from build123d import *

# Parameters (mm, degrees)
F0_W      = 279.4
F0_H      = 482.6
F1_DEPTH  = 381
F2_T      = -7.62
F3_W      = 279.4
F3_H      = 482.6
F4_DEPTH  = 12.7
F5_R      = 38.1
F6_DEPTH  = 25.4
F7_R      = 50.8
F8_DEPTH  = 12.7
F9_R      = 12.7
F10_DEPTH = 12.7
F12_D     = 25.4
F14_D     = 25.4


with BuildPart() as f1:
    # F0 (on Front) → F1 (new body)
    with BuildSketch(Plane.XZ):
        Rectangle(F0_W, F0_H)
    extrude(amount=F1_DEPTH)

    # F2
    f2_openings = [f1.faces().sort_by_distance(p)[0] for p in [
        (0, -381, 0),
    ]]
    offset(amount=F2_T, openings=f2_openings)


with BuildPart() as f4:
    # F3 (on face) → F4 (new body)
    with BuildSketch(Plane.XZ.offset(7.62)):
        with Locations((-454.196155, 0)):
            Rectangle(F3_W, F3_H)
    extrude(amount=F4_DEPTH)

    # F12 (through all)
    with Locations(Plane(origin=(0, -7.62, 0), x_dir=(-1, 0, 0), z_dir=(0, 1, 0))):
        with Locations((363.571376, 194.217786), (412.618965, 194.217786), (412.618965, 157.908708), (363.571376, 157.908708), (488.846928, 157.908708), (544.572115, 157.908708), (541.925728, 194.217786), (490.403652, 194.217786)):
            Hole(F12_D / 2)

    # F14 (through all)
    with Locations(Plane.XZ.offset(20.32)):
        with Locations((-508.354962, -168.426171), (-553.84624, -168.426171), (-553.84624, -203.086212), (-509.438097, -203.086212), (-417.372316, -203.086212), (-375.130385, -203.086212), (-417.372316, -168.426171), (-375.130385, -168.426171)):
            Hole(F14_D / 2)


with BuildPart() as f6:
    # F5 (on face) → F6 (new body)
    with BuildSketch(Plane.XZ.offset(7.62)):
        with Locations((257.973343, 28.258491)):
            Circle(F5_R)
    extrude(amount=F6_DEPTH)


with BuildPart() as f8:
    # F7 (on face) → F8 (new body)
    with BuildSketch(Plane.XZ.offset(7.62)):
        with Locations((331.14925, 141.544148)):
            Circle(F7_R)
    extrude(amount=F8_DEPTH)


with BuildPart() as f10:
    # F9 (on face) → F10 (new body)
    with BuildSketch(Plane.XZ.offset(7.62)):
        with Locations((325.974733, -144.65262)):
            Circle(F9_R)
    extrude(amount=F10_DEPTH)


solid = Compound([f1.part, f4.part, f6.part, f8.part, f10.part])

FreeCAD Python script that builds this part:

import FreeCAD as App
import Part
import Sketcher
from FreeCAD import Vector
Q = App.Units.Quantity


def faces_at(feature, points):
    """Names of the faces that lie closest to the given points."""
    faces = feature.Shape.Faces
    near = lambda p: min(range(len(faces)), key=lambda i: faces[i].distToShape(Part.Vertex(*p))[0])
    return sorted({f"Face{near(p) + 1}" for p in points})


def add_polygon(sketch, points):
    """Adds a closed chain of lines whose ends are joined by coincident constraints."""
    first, n = sketch.GeometryCount, len(points)
    for a, b in zip(points, points[1:] + points[:1]):
        sketch.addGeometry(Part.LineSegment(App.Vector(*a, 0), App.Vector(*b, 0)), False)
    for i in range(n):
        sketch.addConstraint(Sketcher.Constraint("Coincident", first + i, 2, first + (i + 1) % n, 1))

doc = App.newDocument("Part")
body = doc.addObject("PartDesign::Body", "Body")

# Sketch on XZ plane
sketch1 = doc.addObject("Sketcher::SketchObject", "Sketch")
body.addObject(sketch1)
sketch1.AttachmentSupport = (doc.XZ_Plane, [""])
sketch1.MapMode = "FlatFace"
add_polygon(sketch1, [(-140, 241), (-140, -241), (140, -241), (140, 241)])  # lines 0-3
sketch1.addConstraint(Sketcher.Constraint("Vertical", 0))
sketch1.addConstraint(Sketcher.Constraint("Horizontal", 1))
sketch1.addConstraint(Sketcher.Constraint("Vertical", 2))
sketch1.addConstraint(Sketcher.Constraint("Horizontal", 3))
sketch1.addConstraint(Sketcher.Constraint("Symmetric", 0, 2, 2, 2, -1, 1))
sketch1.addConstraint(Sketcher.Constraint("DistanceX", 1, 1, 1, 2, Q("11 in")))
sketch1.addConstraint(Sketcher.Constraint("DistanceY", 0, 2, 0, 1, Q("19 in")))
pad1 = doc.addObject("PartDesign::Pad", "Pad")
body.addObject(pad1)
pad1.Profile = sketch1
pad1.Length = Q("15 in")
doc.recompute()

thickness = doc.addObject("PartDesign::Thickness", "Thickness")
body.addObject(thickness)
thickness.Base = (pad1, faces_at(pad1, [(0, -381, 0)]))
thickness.Value = Q("0.3 in")
thickness.Reversed = True
thickness.Join = "Arc"
body2 = doc.addObject("PartDesign::Body", "Body001")

# Sketch on XZ plane
sketch2 = doc.addObject("Sketcher::SketchObject", "Sketch001")
body2.addObject(sketch2)
sketch2.AttachmentSupport = (doc.getObject("XZ_Plane001"), [""])
sketch2.MapMode = "FlatFace"
sketch2.AttachmentOffset = App.Placement(Vector(0, 0, 0.3 * 25.4), App.Rotation())
add_polygon(sketch2, [(-594, 241), (-594, -241), (-314, -241), (-314, 241)])  # lines 0-3
sketch2.addConstraint(Sketcher.Constraint("Vertical", 0))
sketch2.addConstraint(Sketcher.Constraint("Horizontal", 1))
sketch2.addConstraint(Sketcher.Constraint("Vertical", 2))
sketch2.addConstraint(Sketcher.Constraint("Horizontal", 3))
sketch2.addConstraint(Sketcher.Constraint("DistanceX", 1, 1, 1, 2, Q("11 in")))
sketch2.addConstraint(Sketcher.Constraint("DistanceY", 0, 2, 0, 1, Q("19 in")))
sketch2.addConstraint(Sketcher.Constraint("DistanceY", 0, 2, -1, 1, Q("9.5 in")))
sketch2.addConstraint(Sketcher.Constraint("DistanceX", 0, 2, -1, 1, 593.896155))
pad2 = doc.addObject("PartDesign::Pad", "Pad001")
body2.addObject(pad2)
pad2.Profile = sketch2
pad2.Length = Q("0.5 in")

# Sketch on XZ plane
sketch3 = doc.addObject("Sketcher::SketchObject", "Sketch002")
body2.addObject(sketch3)
sketch3.AttachmentSupport = (doc.getObject("XZ_Plane001"), [""])
sketch3.MapMode = "FlatFace"
sketch3.AttachmentOffset = App.Placement(Vector(0, 0, 0.3 * 25.4), App.Rotation())
sketch3.addGeometry(Part.Circle(Vector(-364, 194, 0), Vector(0, 0, 1), 13), False)
sketch3.addGeometry(Part.Circle(Vector(-413, 194, 0), Vector(0, 0, 1), 13), False)
sketch3.addGeometry(Part.Circle(Vector(-413, 158, 0), Vector(0, 0, 1), 13), False)
sketch3.addGeometry(Part.Circle(Vector(-364, 158, 0), Vector(0, 0, 1), 13), False)
sketch3.addGeometry(Part.Circle(Vector(-489, 158, 0), Vector(0, 0, 1), 13), False)
sketch3.addGeometry(Part.Circle(Vector(-545, 158, 0), Vector(0, 0, 1), 13), False)
sketch3.addGeometry(Part.Circle(Vector(-542, 194, 0), Vector(0, 0, 1), 13), False)
sketch3.addGeometry(Part.Circle(Vector(-490, 194, 0), Vector(0, 0, 1), 13), False)
sketch3.addConstraint(Sketcher.Constraint("Equal", 0, 1))
sketch3.addConstraint(Sketcher.Constraint("Equal", 1, 2))
sketch3.addConstraint(Sketcher.Constraint("Equal", 2, 3))
sketch3.addConstraint(Sketcher.Constraint("Equal", 3, 4))
sketch3.addConstraint(Sketcher.Constraint("Equal", 4, 5))
sketch3.addConstraint(Sketcher.Constraint("Equal", 5, 6))
sketch3.addConstraint(Sketcher.Constraint("Equal", 6, 7))
sketch3.addConstraint(Sketcher.Constraint("Horizontal", 0, 3, 1, 3))
sketch3.addConstraint(Sketcher.Constraint("Horizontal", 2, 3, 3, 3))
sketch3.addConstraint(Sketcher.Constraint("Horizontal", 3, 3, 4, 3))
sketch3.addConstraint(Sketcher.Constraint("Horizontal", 4, 3, 5, 3))
sketch3.addConstraint(Sketcher.Constraint("Horizontal", 1, 3, 6, 3))
sketch3.addConstraint(Sketcher.Constraint("Horizontal", 6, 3, 7, 3))
sketch3.addConstraint(Sketcher.Constraint("Vertical", 1, 3, 2, 3))
sketch3.addConstraint(Sketcher.Constraint("Vertical", 0, 3, 3, 3))
sketch3.addConstraint(Sketcher.Constraint("Diameter", 0, Q("1 in")))
sketch3.addConstraint(Sketcher.Constraint("DistanceX", 6, 3, 4, 3, 53.0788))
sketch3.addConstraint(Sketcher.Constraint("DistanceX", 4, 3, -1, 1, 488.846928))
sketch3.addConstraint(Sketcher.Constraint("DistanceX", 7, 3, -1, 1, 490.403652))
sketch3.addConstraint(Sketcher.Constraint("DistanceX", 1, 3, 0, 3, 49.047589))
sketch3.addConstraint(Sketcher.Constraint("DistanceX", 5, 3, 2, 3, 131.95315))
sketch3.addConstraint(Sketcher.Constraint("DistanceX", 0, 3, -1, 1, 363.571376))
sketch3.addConstraint(Sketcher.Constraint("DistanceY", -1, 1, 0, 3, 194.217786))
sketch3.addConstraint(Sketcher.Constraint("DistanceY", -1, 1, 2, 3, 157.908708))
doc.recompute()
hole = doc.addObject("PartDesign::Hole", "Hole")
body2.addObject(hole)
hole.Profile = sketch3
hole.ThreadType = "None"
hole.Diameter = Q("1 in")
hole.DepthType = "ThroughAll"
hole.Reversed = True

# Sketch on XZ plane
sketch4 = doc.addObject("Sketcher::SketchObject", "Sketch003")
body2.addObject(sketch4)
sketch4.AttachmentSupport = (doc.getObject("XZ_Plane001"), [""])
sketch4.MapMode = "FlatFace"
sketch4.AttachmentOffset = App.Placement(Vector(0, 0, 0.8 * 25.4), App.Rotation())
sketch4.addGeometry(Part.Circle(Vector(-508, -168, 0), Vector(0, 0, 1), 13), False)
sketch4.addGeometry(Part.Circle(Vector(-554, -168, 0), Vector(0, 0, 1), 13), False)
sketch4.addGeometry(Part.Circle(Vector(-554, -203, 0), Vector(0, 0, 1), 13), False)
sketch4.addGeometry(Part.Circle(Vector(-509, -203, 0), Vector(0, 0, 1), 13), False)
sketch4.addGeometry(Part.Circle(Vector(-417, -203, 0), Vector(0, 0, 1), 13), False)
sketch4.addGeometry(Part.Circle(Vector(-375, -203, 0), Vector(0, 0, 1), 13), False)
sketch4.addGeometry(Part.Circle(Vector(-417, -168, 0), Vector(0, 0, 1), 13), False)
sketch4.addGeometry(Part.Circle(Vector(-375, -168, 0), Vector(0, 0, 1), 13), False)
sketch4.addConstraint(Sketcher.Constraint("Equal", 0, 1))
sketch4.addConstraint(Sketcher.Constraint("Equal", 1, 2))
sketch4.addConstraint(Sketcher.Constraint("Equal", 2, 3))
sketch4.addConstraint(Sketcher.Constraint("Equal", 3, 4))
sketch4.addConstraint(Sketcher.Constraint("Equal", 4, 5))
sketch4.addConstraint(Sketcher.Constraint("Equal", 5, 6))
sketch4.addConstraint(Sketcher.Constraint("Equal", 6, 7))
sketch4.addConstraint(Sketcher.Constraint("Horizontal", 0, 3, 1, 3))
sketch4.addConstraint(Sketcher.Constraint("Horizontal", 2, 3, 3, 3))
sketch4.addConstraint(Sketcher.Constraint("Horizontal", 3, 3, 4, 3))
sketch4.addConstraint(Sketcher.Constraint("Horizontal", 4, 3, 5, 3))
sketch4.addConstraint(Sketcher.Constraint("Horizontal", 1, 3, 6, 3))
sketch4.addConstraint(Sketcher.Constraint("Horizontal", 6, 3, 7, 3))
sketch4.addConstraint(Sketcher.Constraint("Vertical", 1, 3, 2, 3))
sketch4.addConstraint(Sketcher.Constraint("Vertical", 4, 3, 6, 3))
sketch4.addConstraint(Sketcher.Constraint("Vertical", 5, 3, 7, 3))
sketch4.addConstraint(Sketcher.Constraint("Diameter", 0, Q("1 in")))
sketch4.addConstraint(Sketcher.Constraint("DistanceX", 0, 3, -1, 1, 508.354962))
sketch4.addConstraint(Sketcher.Constraint("DistanceY", 0, 3, -1, 1, 168.426171))
sketch4.addConstraint(Sketcher.Constraint("DistanceX", 1, 3, -1, 1, 553.84624))
sketch4.addConstraint(Sketcher.Constraint("DistanceY", 2, 3, -1, 1, 203.086212))
sketch4.addConstraint(Sketcher.Constraint("DistanceX", 3, 3, 4, 3, 92.065781))
sketch4.addConstraint(Sketcher.Constraint("DistanceX", 4, 3, 5, 3, 42.241931))
sketch4.addConstraint(Sketcher.Constraint("DistanceX", 3, 3, -1, 1, 509.438097))
doc.recompute()
hole2 = doc.addObject("PartDesign::Hole", "Hole001")
body2.addObject(hole2)
hole2.Profile = sketch4
hole2.ThreadType = "None"
hole2.Diameter = Q("1 in")
hole2.DepthType = "ThroughAll"
body3 = doc.addObject("PartDesign::Body", "Body002")

# Sketch on XZ plane
sketch5 = doc.addObject("Sketcher::SketchObject", "Sketch004")
body3.addObject(sketch5)
sketch5.AttachmentSupport = (doc.getObject("XZ_Plane002"), [""])
sketch5.MapMode = "FlatFace"
sketch5.AttachmentOffset = App.Placement(Vector(0, 0, 0.3 * 25.4), App.Rotation())
sketch5.addGeometry(Part.Circle(Vector(258, 28, 0), Vector(0, 0, 1), 38), False)
sketch5.addConstraint(Sketcher.Constraint("Diameter", 0, Q("3 in")))
sketch5.addConstraint(Sketcher.Constraint("DistanceY", -1, 1, 0, 3, 28.258491))
sketch5.addConstraint(Sketcher.Constraint("DistanceX", -1, 1, 0, 3, 257.973343))
pad3 = doc.addObject("PartDesign::Pad", "Pad002")
body3.addObject(pad3)
pad3.Profile = sketch5
pad3.Length = Q("1 in")
body4 = doc.addObject("PartDesign::Body", "Body003")

# Sketch on XZ plane
sketch6 = doc.addObject("Sketcher::SketchObject", "Sketch005")
body4.addObject(sketch6)
sketch6.AttachmentSupport = (doc.getObject("XZ_Plane003"), [""])
sketch6.MapMode = "FlatFace"
sketch6.AttachmentOffset = App.Placement(Vector(0, 0, 0.3 * 25.4), App.Rotation())
sketch6.addGeometry(Part.Circle(Vector(331, 142, 0), Vector(0, 0, 1), 51), False)
sketch6.addConstraint(Sketcher.Constraint("Diameter", 0, Q("4 in")))
sketch6.addConstraint(Sketcher.Constraint("DistanceX", -1, 1, 0, 3, 331.14925))
sketch6.addConstraint(Sketcher.Constraint("DistanceY", -1, 1, 0, 3, 141.544148))
pad4 = doc.addObject("PartDesign::Pad", "Pad003")
body4.addObject(pad4)
pad4.Profile = sketch6
pad4.Length = Q("0.5 in")
body5 = doc.addObject("PartDesign::Body", "Body004")

# Sketch on XZ plane
sketch7 = doc.addObject("Sketcher::SketchObject", "Sketch006")
body5.addObject(sketch7)
sketch7.AttachmentSupport = (doc.getObject("XZ_Plane004"), [""])
sketch7.MapMode = "FlatFace"
sketch7.AttachmentOffset = App.Placement(Vector(0, 0, 0.3 * 25.4), App.Rotation())
sketch7.addGeometry(Part.Circle(Vector(326, -145, 0), Vector(0, 0, 1), 13), False)
sketch7.addConstraint(Sketcher.Constraint("Diameter", 0, Q("1 in")))
sketch7.addConstraint(Sketcher.Constraint("DistanceY", 0, 3, -1, 1, 144.65262))
sketch7.addConstraint(Sketcher.Constraint("DistanceX", -1, 1, 0, 3, 325.974733))
pad5 = doc.addObject("PartDesign::Pad", "Pad004")
body5.addObject(pad5)
pad5.Profile = sketch7
pad5.Length = Q("0.5 in")

doc.recompute()
